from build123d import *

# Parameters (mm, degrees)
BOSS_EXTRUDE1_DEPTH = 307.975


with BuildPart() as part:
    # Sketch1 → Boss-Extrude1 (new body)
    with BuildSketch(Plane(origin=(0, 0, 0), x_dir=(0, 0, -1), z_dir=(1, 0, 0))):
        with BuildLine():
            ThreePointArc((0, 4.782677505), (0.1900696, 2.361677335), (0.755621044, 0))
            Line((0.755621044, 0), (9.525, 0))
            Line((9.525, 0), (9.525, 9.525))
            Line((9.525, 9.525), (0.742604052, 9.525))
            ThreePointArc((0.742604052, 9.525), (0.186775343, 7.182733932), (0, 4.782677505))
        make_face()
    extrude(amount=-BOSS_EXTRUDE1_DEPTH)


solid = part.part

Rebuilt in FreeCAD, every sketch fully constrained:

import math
import FreeCAD as App
import Part
import Sketcher
from FreeCAD import Vector
Q = App.Units.Quantity

doc = App.newDocument("Part")
body = doc.addObject("PartDesign::Body", "Body")

# Sketch on YZ plane
sketch1 = body.newObject("Sketcher::SketchObject", "Sketch")
sketch1.AttachmentSupport = (doc.getObject("YZ_Plane"), [""])
sketch1.MapMode = "FlatFace"
sketch1.addGeometry([
    Part.ArcOfCircle(Part.Circle(Vector(4.8, -15.5, 0), Vector(0, 0, 1), 15.5), math.radians(90), math.radians(107.96)),  # 0
    Part.LineSegment(Vector(0, -0.8, 0), Vector(0, -9.5, 0)),  # 1
    Part.LineSegment(Vector(0, -9.5, 0), Vector(9.5, -9.5, 0)),  # 2
    Part.LineSegment(Vector(9.5, -9.5, 0), Vector(9.5, -0.7, 0)),  # 3
    Part.ArcOfCircle(Part.Circle(Vector(4.8, -15.5, 0), Vector(0, 0, 1), 15.5), math.radians(72.2), math.radians(90)),  # 4
], False)
sketch1.addConstraint([
    Sketcher.Constraint("Coincident", 0, 2, 1, 1),
    Sketcher.Constraint("Coincident", 1, 2, 2, 1),
    Sketcher.Constraint("Coincident", 2, 2, 3, 1),
    Sketcher.Constraint("Coincident", 3, 2, 4, 1),
    Sketcher.Constraint("Tangent", 4, 2, 0, 1),
    Sketcher.Constraint("Vertical", 1),
    Sketcher.Constraint("Horizontal", 2),
    Sketcher.Constraint("Vertical", 3),
    Sketcher.Constraint("Equal", 0, 4),
    Sketcher.Constraint("PointOnObject", 0, 2, -2),
    Sketcher.Constraint("PointOnObject", 4, 2, -1),
    Sketcher.Constraint("Vertical", 0, 3, 4, 2),
    Sketcher.Constraint("DistanceX", 2, 1, 2, 2, Q("0.375 in")),
    Sketcher.Constraint("DistanceY", 1, 2, -1, 1, Q("0.375 in")),
    Sketcher.Constraint("Radius", 0, Q("15.513707 mm")),
    Sketcher.Constraint("DistanceY", 1, 2, 1, 1, Q("8.769379 mm")),
])
pad1 = body.newObject("PartDesign::Pad", "Pad")
pad1.Profile = sketch1
pad1.Length = Q("12.125 in")
pad1.Reversed = True

doc.recompute()
